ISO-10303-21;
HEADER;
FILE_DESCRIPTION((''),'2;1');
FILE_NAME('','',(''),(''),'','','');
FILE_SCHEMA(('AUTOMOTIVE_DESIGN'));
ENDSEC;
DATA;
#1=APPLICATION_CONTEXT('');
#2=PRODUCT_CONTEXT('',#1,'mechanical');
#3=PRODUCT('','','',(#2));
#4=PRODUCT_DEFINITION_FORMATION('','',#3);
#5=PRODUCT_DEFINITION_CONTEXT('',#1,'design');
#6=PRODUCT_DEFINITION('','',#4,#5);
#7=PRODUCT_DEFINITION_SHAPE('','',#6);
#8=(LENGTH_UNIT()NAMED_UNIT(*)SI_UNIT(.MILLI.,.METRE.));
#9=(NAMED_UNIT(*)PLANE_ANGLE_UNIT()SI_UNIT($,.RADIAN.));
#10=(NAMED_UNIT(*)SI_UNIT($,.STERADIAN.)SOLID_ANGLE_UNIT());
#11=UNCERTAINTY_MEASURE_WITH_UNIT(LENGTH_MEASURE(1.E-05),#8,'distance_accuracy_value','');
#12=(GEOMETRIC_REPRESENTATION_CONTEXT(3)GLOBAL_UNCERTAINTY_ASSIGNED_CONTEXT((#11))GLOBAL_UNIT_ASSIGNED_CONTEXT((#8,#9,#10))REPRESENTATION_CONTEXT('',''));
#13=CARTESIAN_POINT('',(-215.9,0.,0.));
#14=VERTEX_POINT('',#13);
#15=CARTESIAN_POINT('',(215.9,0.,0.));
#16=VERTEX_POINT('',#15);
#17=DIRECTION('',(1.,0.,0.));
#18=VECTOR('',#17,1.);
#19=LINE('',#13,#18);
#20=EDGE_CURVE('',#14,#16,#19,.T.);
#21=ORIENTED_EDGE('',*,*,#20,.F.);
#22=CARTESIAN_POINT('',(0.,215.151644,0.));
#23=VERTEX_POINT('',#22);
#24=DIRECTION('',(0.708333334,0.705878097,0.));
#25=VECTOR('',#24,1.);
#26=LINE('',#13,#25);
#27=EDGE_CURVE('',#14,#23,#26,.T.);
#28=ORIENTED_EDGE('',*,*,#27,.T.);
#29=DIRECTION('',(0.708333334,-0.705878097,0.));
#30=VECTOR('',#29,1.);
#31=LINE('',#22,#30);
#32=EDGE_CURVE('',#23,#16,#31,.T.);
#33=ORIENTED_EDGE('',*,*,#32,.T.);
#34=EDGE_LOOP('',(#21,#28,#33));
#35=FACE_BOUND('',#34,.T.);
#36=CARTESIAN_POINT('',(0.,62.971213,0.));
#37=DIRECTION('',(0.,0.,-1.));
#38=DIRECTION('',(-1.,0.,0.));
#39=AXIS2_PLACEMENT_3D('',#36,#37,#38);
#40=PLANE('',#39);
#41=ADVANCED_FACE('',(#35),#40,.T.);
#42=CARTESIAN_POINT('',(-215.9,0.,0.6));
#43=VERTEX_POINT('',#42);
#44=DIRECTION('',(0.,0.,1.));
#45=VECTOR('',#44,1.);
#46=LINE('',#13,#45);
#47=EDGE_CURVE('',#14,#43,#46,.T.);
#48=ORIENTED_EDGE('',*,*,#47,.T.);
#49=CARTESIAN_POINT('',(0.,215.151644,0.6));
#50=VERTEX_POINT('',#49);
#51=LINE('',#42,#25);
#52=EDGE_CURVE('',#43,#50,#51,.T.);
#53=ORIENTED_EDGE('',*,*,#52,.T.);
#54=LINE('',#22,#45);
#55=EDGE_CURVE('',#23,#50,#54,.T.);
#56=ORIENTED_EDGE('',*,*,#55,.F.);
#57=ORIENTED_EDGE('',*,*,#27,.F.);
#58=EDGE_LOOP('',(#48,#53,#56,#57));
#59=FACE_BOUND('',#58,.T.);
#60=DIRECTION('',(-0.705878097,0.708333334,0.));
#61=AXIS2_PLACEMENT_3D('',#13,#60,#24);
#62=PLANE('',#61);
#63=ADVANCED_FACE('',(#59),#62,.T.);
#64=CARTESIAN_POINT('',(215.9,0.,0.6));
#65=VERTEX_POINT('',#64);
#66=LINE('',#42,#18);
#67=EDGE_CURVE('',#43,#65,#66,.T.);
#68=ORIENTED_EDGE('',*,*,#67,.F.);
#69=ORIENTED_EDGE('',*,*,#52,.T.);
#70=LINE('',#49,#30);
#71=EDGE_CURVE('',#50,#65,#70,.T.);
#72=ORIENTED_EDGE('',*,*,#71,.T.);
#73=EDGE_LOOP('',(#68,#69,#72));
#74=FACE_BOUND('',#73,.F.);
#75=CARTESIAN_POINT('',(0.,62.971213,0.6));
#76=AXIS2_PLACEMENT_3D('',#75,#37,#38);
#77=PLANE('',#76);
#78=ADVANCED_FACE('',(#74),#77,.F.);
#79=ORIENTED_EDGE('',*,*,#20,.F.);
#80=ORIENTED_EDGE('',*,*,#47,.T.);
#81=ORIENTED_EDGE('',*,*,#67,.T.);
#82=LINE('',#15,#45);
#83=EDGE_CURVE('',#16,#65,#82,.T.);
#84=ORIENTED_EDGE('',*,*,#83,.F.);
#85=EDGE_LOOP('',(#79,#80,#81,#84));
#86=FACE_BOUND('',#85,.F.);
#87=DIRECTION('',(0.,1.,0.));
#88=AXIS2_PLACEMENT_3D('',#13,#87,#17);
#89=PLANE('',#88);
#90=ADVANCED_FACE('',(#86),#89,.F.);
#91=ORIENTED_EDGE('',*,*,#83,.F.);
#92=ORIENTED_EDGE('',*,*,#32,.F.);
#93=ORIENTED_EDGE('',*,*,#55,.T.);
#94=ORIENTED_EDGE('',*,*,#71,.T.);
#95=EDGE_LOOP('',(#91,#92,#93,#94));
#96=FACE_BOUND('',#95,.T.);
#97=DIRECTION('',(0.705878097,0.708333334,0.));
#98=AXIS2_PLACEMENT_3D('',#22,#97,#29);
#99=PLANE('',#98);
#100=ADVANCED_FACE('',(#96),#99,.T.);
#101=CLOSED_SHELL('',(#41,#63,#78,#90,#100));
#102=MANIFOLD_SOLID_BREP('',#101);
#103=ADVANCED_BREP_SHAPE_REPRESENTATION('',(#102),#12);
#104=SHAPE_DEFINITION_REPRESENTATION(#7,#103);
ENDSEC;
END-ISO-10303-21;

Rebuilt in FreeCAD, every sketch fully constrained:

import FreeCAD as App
import Part
import Sketcher

V = App.Vector
Q = App.Units.Quantity

doc = App.newDocument("Part")
body = doc.addObject("PartDesign::Body", "Body")

# Sketch on XY plane
sketch1 = body.newObject("Sketcher::SketchObject", "Sketch")
sketch1.AttachmentSupport = (doc.getObject("XY_Plane"), [""])
sketch1.MapMode = "FlatFace"
sketch1.addGeometry(Part.LineSegment(V(0, 215, 0), V(-216, 0, 0)), False)
sketch1.addGeometry(Part.LineSegment(V(-216, 0, 0), V(216, 0, 0)), False)
sketch1.addGeometry(Part.LineSegment(V(216, 0, 0), V(0, 215, 0)), False)
sketch1.addConstraint(Sketcher.Constraint("Coincident", 0, 2, 1, 1))
sketch1.addConstraint(Sketcher.Constraint("Coincident", 1, 2, 2, 1))
sketch1.addConstraint(Sketcher.Constraint("Coincident", 2, 2, 0, 1))
sketch1.addConstraint(Sketcher.Constraint("Horizontal", 1))
sketch1.addConstraint(Sketcher.Constraint("Symmetric", 0, 2, 1, 2, -1, 1))
sketch1.addConstraint(Sketcher.Constraint("PointOnObject", 2, 2, -2))
sketch1.addConstraint(Sketcher.Constraint("DistanceX", 1, 1, 1, 2, Q("17 in")))
sketch1.addConstraint(Sketcher.Constraint("Distance", 0, Q("12 in")))
pad1 = body.newObject("PartDesign::Pad", "Pad")
pad1.Profile = sketch1
pad1.Length = 0.6

doc.recompute()
